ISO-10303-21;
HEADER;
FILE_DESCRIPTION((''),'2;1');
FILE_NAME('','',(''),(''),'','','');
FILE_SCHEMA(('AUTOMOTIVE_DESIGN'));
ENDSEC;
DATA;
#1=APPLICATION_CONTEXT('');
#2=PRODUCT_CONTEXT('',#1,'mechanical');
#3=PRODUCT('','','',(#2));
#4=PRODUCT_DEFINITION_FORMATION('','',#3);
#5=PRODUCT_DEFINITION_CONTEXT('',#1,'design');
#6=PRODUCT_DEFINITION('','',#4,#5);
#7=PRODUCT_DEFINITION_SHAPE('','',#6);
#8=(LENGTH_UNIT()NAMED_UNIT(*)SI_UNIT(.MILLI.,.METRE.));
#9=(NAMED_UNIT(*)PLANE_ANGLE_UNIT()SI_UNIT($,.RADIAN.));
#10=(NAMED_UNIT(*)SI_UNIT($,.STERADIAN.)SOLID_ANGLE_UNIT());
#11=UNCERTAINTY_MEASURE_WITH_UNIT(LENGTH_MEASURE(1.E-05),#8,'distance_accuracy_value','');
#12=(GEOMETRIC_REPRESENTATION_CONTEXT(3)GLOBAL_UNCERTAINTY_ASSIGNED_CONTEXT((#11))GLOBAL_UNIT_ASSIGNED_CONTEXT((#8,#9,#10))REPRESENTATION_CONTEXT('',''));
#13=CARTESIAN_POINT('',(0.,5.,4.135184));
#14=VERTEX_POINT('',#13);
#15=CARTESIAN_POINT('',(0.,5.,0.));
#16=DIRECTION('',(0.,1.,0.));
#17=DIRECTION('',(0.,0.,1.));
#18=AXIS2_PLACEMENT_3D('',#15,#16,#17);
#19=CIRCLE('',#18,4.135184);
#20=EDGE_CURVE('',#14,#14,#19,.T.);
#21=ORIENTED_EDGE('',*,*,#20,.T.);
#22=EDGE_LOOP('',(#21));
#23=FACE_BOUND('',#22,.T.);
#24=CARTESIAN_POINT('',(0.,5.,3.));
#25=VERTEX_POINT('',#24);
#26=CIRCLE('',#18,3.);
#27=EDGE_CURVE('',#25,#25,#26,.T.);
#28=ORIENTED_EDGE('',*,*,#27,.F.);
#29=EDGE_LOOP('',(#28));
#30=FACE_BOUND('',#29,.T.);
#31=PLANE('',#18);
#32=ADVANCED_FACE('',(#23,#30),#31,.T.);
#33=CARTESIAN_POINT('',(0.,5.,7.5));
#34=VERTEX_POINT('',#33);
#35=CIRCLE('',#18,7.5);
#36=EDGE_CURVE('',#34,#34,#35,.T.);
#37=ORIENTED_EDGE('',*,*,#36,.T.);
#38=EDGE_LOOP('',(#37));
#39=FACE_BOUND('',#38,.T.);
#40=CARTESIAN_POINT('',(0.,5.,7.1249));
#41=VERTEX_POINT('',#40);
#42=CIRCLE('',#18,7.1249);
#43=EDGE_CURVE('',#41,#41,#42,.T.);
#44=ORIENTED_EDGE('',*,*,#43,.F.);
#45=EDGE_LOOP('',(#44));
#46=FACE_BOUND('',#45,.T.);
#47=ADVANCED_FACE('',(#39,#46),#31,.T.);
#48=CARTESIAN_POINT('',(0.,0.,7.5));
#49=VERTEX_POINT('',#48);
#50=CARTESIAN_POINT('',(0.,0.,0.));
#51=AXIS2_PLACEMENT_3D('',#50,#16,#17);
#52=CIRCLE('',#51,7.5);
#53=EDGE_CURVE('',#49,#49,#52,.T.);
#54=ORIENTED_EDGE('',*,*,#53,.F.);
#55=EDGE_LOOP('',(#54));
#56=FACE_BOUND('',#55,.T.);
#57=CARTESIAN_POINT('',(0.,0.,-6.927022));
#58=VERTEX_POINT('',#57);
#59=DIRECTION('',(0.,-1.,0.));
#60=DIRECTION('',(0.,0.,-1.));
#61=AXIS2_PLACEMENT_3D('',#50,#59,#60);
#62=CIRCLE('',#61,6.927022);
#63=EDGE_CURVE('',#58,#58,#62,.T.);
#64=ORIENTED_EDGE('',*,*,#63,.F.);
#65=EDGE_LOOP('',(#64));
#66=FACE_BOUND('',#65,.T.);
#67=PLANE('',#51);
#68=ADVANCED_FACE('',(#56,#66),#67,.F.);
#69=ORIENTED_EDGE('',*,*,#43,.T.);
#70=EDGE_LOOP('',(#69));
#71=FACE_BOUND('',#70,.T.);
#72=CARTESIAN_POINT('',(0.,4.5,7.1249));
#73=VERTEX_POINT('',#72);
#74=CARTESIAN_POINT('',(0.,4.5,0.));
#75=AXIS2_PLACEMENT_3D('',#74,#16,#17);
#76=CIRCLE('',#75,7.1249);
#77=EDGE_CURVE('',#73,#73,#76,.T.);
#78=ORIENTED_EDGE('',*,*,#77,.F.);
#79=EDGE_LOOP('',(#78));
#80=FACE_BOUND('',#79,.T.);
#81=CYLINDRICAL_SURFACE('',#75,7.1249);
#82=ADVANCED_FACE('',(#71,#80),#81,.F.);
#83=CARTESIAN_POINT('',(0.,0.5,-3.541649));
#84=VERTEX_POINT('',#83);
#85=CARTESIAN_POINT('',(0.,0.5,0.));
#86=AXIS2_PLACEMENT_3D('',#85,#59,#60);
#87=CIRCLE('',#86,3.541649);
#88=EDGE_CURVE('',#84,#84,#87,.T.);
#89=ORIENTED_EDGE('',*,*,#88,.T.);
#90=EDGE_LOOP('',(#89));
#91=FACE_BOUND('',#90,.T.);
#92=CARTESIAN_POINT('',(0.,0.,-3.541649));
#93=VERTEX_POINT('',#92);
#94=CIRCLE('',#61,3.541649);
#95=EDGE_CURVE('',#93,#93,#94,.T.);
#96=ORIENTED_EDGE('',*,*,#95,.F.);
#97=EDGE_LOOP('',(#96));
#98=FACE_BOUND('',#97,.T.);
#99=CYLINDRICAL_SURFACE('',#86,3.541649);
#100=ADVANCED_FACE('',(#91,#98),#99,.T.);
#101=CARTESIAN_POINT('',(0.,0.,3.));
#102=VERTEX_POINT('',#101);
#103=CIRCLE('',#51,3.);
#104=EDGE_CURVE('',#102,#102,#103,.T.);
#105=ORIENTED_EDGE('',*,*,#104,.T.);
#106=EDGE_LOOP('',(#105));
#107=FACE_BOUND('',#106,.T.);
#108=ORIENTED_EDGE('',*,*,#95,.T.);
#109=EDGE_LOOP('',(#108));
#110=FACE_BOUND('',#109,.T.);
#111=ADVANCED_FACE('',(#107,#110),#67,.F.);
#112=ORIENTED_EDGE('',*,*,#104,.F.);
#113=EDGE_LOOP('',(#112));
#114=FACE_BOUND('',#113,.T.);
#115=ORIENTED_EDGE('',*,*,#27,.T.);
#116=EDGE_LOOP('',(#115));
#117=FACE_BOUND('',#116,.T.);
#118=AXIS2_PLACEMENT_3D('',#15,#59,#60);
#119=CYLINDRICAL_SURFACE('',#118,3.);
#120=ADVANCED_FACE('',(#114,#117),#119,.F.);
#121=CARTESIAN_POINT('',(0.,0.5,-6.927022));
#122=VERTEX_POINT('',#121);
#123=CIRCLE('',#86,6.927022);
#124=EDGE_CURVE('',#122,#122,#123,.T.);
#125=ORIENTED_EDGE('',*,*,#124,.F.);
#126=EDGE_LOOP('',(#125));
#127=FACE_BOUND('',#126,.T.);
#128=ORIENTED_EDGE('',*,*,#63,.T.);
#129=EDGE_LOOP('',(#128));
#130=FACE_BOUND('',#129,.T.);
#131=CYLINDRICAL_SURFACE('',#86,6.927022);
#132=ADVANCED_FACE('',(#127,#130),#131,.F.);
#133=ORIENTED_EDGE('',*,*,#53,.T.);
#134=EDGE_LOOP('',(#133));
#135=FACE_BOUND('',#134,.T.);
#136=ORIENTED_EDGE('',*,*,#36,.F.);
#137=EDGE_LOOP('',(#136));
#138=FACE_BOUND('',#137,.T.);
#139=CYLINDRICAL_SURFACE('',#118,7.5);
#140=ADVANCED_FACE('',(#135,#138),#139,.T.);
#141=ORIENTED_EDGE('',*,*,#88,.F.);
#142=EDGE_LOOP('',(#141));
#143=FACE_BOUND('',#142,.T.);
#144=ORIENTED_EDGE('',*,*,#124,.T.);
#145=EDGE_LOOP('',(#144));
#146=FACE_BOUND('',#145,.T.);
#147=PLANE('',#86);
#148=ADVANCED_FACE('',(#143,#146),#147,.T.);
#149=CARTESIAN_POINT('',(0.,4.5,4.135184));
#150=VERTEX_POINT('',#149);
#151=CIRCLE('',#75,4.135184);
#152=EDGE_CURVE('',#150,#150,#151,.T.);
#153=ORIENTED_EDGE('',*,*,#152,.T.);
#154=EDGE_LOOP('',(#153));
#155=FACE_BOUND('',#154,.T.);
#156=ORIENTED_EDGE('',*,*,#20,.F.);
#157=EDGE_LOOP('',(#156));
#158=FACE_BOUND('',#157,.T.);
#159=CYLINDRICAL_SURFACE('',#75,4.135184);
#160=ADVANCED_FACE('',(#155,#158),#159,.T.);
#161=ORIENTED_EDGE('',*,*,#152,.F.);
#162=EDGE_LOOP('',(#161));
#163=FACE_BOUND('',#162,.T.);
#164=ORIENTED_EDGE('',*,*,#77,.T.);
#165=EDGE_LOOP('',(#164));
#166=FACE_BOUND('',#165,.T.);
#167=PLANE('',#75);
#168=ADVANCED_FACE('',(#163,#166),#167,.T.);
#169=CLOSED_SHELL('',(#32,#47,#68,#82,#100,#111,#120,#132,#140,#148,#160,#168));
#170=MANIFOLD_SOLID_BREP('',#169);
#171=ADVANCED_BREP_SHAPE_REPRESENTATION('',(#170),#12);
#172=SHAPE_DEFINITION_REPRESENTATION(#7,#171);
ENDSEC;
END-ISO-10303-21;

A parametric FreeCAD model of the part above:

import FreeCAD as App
import Part
import Sketcher
from FreeCAD import Vector
Q = App.Units.Quantity

doc = App.newDocument("Part")
params = doc.addObject("Spreadsheet::Sheet", "Params")
for row, (alias, value) in enumerate([
    ("sketch1_diameter", "15 mm"),
    ("sketch1_diameter2", "6 mm"),
    ("pad1_length", "5 mm"),
    ("pocket1_length", "0.5 mm"),
    ("pocket2_length", "0.5 mm"),
], start=1):
    params.set(f"A{row}", alias)
    params.set(f"B{row}", "=" + value)
    params.setAlias(f"B{row}", alias)

body = doc.addObject("PartDesign::Body", "Body")

# Sketch on XZ plane
sketch1 = body.newObject("Sketcher::SketchObject", "Sketch")
sketch1.AttachmentSupport = (doc.getObject("XZ_Plane"), [""])
sketch1.MapMode = "FlatFace"
sketch1.addGeometry([
    Part.Circle(Vector(0, 0, 0), Vector(0, 0, 1), 7.5),
    Part.Circle(Vector(0, 0, 0), Vector(0, 0, 1), 3),
], False)
sketch1.addConstraint([
    Sketcher.Constraint("Coincident", 0, 3, -1, 1),
    Sketcher.Constraint("Coincident", 1, 3, -1, 1),
    Sketcher.Constraint("Diameter", 0, Q("15 mm")),
    Sketcher.Constraint("Diameter", 1, Q("6 mm")),
])
sketch1.setExpression("Constraints[2]", "Params.sketch1_diameter")
sketch1.setExpression("Constraints[3]", "Params.sketch1_diameter2")
pad1 = body.newObject("PartDesign::Pad", "Pad")
pad1.Profile = sketch1
pad1.setExpression("Length", "Params.pad1_length")
pad1.Reversed = True

# Sketch on XZ plane
sketch2 = body.newObject("Sketcher::SketchObject", "Sketch001")
sketch2.AttachmentSupport = (doc.getObject("XZ_Plane"), [""])
sketch2.MapMode = "FlatFace"
sketch2.AttachmentOffset = App.Placement(Vector(0, 0, -5), App.Rotation())
sketch2.addGeometry([
    Part.Circle(Vector(0, 0, 0), Vector(0, 0, 1), 7.1),
    Part.Circle(Vector(0, 0, 0), Vector(0, 0, 1), 4.1),
], False)
sketch2.addConstraint([
    Sketcher.Constraint("Coincident", 0, 3, -1, 1),
    Sketcher.Constraint("Coincident", 1, 3, -1, 1),
    Sketcher.Constraint("Diameter", 0, Q("14.249801 mm")),
    Sketcher.Constraint("Diameter", 1, Q("8.270368 mm")),
])
pocket1 = body.newObject("PartDesign::Pocket", "Pocket")
pocket1.Profile = sketch2
pocket1.setExpression("Length", "Params.pocket1_length")
pocket1.Reversed = True

# Sketch on XZ plane
sketch3 = body.newObject("Sketcher::SketchObject", "Sketch002")
sketch3.AttachmentSupport = (doc.getObject("XZ_Plane"), [""])
sketch3.MapMode = "FlatFace"
sketch3.addGeometry([
    Part.Circle(Vector(0, 0, 0), Vector(0, 0, 1), 6.9),
    Part.Circle(Vector(0, 0, 0), Vector(0, 0, 1), 3.5),
], False)
sketch3.addConstraint([
    Sketcher.Constraint("Coincident", 0, 3, -1, 1),
    Sketcher.Constraint("Coincident", 1, 3, -1, 1),
    Sketcher.Constraint("Diameter", 1, Q("7.083298 mm")),
    Sketcher.Constraint("Diameter", 0, Q("13.854044 mm")),
])
pocket2 = body.newObject("PartDesign::Pocket", "Pocket001")
pocket2.Profile = sketch3
pocket2.setExpression("Length", "Params.pocket2_length")

doc.recompute()
